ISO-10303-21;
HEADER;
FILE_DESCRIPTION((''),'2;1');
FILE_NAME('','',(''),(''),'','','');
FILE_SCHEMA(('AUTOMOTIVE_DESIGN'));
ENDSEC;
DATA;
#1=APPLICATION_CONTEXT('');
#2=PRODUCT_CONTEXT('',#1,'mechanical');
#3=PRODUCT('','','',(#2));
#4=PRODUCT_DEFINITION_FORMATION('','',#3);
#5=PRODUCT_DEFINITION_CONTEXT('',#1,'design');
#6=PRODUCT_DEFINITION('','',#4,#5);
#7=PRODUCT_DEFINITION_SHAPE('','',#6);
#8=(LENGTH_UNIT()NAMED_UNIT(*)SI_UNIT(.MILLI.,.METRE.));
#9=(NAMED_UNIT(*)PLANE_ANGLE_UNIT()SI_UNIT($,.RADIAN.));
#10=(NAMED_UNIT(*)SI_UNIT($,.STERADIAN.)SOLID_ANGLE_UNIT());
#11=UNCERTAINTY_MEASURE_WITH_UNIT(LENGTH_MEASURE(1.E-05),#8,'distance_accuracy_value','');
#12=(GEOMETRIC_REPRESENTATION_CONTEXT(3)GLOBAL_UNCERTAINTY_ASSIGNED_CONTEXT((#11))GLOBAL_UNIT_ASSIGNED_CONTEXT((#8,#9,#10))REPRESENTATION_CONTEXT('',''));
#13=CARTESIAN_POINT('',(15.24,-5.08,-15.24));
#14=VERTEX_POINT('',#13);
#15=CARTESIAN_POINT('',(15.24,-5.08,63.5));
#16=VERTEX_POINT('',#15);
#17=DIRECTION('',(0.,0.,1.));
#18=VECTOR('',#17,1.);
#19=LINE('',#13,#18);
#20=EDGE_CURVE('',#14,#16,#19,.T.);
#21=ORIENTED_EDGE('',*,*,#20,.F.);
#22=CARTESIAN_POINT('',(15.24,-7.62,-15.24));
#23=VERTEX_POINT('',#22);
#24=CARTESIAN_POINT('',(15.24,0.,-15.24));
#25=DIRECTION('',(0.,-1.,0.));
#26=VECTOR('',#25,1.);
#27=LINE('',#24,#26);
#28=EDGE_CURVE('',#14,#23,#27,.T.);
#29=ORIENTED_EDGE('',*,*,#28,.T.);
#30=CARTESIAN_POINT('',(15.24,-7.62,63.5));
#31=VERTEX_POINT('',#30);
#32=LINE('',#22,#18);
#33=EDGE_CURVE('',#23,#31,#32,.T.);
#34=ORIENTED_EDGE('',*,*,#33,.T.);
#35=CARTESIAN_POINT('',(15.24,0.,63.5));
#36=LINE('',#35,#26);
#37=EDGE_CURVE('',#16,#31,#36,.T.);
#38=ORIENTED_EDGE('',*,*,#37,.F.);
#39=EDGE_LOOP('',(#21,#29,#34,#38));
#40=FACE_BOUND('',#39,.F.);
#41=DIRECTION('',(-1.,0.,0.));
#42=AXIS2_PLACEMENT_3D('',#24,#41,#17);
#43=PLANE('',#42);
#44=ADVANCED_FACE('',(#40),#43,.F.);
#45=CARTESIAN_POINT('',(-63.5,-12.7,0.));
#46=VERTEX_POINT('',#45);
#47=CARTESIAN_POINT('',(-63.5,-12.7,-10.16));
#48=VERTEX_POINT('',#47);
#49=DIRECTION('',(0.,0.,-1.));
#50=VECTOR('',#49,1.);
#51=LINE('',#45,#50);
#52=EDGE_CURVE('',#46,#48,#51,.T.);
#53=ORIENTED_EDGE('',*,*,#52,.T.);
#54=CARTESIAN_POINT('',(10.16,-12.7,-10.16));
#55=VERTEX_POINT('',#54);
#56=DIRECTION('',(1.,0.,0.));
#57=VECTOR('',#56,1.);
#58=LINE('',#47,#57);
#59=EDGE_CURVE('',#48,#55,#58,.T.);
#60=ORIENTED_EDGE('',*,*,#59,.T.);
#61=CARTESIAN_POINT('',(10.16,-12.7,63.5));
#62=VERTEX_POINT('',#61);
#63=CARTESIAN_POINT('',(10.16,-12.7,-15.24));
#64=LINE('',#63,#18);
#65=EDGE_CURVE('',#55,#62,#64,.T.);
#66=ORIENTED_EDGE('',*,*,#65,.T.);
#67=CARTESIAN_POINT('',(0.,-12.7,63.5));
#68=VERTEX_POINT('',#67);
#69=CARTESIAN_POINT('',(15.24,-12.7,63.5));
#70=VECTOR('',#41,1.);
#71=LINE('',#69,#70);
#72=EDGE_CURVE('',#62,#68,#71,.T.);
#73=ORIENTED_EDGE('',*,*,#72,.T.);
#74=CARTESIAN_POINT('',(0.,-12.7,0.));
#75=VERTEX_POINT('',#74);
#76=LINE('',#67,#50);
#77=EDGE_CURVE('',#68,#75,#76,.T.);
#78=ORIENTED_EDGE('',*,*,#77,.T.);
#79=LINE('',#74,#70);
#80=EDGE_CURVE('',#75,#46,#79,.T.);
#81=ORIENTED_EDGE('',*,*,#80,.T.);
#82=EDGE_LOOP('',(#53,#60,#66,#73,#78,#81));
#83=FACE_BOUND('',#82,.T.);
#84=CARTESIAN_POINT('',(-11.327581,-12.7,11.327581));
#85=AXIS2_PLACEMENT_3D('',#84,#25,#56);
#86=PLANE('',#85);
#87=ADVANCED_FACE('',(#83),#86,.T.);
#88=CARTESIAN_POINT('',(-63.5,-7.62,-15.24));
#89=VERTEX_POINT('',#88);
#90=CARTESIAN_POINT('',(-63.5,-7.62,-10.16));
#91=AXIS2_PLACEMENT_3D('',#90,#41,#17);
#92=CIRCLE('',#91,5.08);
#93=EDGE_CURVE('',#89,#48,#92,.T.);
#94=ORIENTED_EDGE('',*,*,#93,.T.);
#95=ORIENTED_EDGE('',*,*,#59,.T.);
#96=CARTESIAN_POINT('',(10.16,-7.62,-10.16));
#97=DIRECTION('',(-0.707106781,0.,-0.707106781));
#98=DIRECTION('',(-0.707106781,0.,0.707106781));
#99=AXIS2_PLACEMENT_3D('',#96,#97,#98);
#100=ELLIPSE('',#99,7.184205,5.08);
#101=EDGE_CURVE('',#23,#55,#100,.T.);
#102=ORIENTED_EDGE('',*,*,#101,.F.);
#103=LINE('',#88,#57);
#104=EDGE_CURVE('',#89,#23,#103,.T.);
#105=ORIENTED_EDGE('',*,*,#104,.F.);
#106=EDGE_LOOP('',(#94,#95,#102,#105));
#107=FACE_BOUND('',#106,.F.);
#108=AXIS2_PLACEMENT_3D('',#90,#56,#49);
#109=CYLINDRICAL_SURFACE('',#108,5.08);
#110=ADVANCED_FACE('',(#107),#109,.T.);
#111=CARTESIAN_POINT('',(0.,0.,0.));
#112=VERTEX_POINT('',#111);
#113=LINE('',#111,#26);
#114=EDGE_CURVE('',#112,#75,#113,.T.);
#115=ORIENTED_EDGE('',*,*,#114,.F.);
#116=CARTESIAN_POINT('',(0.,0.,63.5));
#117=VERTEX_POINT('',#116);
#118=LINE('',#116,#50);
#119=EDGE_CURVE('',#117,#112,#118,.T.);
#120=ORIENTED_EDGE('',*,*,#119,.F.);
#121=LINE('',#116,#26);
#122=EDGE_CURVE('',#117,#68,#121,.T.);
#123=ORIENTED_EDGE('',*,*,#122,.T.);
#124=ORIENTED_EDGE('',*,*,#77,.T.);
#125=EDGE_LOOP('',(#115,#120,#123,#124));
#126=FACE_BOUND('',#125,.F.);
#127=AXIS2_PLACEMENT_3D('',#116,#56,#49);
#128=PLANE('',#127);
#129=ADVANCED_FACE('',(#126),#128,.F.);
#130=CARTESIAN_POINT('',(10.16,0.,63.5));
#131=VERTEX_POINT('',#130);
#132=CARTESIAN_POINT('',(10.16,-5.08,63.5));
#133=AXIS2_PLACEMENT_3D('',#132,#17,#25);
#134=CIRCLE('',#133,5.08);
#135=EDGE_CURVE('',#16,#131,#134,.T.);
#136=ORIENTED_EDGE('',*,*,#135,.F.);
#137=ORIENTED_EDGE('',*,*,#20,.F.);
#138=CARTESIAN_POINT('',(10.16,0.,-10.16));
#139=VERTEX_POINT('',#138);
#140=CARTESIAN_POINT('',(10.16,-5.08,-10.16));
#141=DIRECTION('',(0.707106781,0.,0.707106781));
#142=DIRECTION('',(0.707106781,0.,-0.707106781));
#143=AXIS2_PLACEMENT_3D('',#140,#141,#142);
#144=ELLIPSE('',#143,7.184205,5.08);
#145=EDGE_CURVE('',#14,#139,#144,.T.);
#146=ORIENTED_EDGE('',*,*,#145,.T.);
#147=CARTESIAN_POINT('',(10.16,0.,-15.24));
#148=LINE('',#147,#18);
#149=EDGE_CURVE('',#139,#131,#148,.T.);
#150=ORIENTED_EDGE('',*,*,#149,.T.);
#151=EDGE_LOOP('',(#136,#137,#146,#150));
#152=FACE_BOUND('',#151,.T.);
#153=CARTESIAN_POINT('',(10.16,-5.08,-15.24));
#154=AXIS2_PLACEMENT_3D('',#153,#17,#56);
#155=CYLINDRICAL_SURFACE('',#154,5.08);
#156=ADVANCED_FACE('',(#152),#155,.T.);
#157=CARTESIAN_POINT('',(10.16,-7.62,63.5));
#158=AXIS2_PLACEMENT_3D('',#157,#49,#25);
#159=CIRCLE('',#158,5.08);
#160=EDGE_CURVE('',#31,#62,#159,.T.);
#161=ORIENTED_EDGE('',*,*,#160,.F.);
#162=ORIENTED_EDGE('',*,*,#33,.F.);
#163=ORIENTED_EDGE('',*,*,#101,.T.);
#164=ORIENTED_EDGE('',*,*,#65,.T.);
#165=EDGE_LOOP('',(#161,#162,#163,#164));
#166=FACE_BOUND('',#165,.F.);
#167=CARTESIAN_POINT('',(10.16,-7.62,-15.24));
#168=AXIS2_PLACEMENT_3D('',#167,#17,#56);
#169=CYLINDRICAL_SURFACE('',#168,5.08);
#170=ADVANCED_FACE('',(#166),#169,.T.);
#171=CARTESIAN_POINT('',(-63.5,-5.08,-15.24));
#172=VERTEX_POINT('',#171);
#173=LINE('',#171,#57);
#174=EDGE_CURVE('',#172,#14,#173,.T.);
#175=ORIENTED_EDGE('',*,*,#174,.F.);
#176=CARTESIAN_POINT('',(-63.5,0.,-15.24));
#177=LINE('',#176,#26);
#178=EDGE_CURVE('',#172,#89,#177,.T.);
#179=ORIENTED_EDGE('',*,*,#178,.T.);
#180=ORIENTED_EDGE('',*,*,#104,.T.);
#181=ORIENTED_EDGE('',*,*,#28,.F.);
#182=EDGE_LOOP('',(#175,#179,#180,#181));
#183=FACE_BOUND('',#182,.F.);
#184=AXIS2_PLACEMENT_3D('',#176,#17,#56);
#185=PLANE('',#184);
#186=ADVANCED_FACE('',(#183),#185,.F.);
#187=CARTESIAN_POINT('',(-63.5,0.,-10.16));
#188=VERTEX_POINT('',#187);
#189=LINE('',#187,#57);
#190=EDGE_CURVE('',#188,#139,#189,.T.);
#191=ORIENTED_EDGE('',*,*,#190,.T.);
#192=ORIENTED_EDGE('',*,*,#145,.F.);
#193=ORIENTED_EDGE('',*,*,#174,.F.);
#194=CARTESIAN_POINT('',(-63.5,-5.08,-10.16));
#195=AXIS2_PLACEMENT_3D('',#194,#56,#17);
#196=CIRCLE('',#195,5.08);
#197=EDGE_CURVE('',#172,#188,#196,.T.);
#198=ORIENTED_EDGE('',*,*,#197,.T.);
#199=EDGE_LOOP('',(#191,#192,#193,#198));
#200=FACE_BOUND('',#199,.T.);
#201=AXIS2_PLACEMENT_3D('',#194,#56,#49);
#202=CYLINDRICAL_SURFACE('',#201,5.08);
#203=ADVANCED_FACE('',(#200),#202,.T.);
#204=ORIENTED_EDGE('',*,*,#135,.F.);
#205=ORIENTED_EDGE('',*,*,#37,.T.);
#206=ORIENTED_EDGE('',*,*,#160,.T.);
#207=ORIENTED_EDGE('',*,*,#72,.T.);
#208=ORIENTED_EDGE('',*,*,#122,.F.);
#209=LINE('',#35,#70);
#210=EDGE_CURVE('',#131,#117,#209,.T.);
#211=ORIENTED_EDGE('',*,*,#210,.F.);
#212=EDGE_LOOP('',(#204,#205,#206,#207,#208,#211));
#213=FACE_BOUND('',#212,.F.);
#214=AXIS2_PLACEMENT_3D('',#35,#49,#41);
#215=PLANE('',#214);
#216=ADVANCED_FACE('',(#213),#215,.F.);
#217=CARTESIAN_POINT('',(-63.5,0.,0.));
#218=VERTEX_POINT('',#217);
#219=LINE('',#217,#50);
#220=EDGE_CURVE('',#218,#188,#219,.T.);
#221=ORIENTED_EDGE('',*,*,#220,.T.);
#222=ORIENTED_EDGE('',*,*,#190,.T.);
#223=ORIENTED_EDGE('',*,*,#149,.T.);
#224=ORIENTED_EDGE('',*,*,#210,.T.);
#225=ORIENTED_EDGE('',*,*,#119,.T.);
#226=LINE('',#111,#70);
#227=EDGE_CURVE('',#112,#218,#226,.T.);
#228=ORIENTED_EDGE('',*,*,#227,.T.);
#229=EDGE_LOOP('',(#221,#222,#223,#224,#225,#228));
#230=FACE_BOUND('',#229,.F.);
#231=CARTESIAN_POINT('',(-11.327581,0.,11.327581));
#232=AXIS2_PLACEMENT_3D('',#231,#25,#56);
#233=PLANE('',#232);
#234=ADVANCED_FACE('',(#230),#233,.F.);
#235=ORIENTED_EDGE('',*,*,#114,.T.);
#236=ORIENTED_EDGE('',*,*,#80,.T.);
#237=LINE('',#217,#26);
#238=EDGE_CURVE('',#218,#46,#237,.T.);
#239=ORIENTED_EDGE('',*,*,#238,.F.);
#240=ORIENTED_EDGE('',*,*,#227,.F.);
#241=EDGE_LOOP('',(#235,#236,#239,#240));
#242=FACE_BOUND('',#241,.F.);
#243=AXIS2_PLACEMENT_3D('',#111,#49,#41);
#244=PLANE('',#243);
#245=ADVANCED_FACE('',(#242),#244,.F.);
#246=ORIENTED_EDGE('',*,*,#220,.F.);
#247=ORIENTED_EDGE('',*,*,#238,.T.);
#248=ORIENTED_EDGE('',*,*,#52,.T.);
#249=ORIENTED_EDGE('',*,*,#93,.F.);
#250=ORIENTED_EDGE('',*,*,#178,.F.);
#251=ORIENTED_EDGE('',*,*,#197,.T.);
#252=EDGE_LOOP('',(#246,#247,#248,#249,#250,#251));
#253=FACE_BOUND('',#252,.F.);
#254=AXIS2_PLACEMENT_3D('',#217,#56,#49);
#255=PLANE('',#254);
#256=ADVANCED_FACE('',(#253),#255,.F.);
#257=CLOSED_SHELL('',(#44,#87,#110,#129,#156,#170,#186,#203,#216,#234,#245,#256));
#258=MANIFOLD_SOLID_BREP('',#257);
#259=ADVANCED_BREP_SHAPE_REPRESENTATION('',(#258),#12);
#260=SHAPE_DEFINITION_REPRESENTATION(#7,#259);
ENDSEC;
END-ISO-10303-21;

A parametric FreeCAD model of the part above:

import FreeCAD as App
import Part
import Sketcher
Q = App.Units.Quantity


def edges_at(feature, points):
    """Names of the edges that pass closest to the given points."""
    edges = feature.Shape.Edges
    near = lambda p: min(range(len(edges)), key=lambda i: edges[i].distToShape(Part.Vertex(*p))[0])
    return sorted({f"Edge{near(p) + 1}" for p in points})

doc = App.newDocument("Part")
body = doc.addObject("PartDesign::Body", "Body")

# Sketch on XZ plane
sketch1 = body.newObject("Sketcher::SketchObject", "Sketch")
sketch1.AttachmentSupport = (doc.getObject("XZ_Plane"), [""])
sketch1.MapMode = "FlatFace"
sketch1.addGeometry([
    Part.LineSegment(App.Vector(0, 0, 0), App.Vector(-63.5, 0, 0)),  # 0
    Part.LineSegment(App.Vector(-63.5, 0, 0), App.Vector(-63.5, -15.24, 0)),  # 1
    Part.LineSegment(App.Vector(-63.5, -15.24, 0), App.Vector(15.24, -15.24, 0)),  # 2
    Part.LineSegment(App.Vector(15.24, -15.24, 0), App.Vector(15.24, 63.5, 0)),  # 3
    Part.LineSegment(App.Vector(15.24, 63.5, 0), App.Vector(0, 63.5, 0)),  # 4
    Part.LineSegment(App.Vector(0, 63.5, 0), App.Vector(0, 0, 0)),  # 5
], False)
sketch1.addConstraint([
    Sketcher.Constraint("Coincident", 0, 2, 1, 1),
    Sketcher.Constraint("Coincident", 1, 2, 2, 1),
    Sketcher.Constraint("Coincident", 2, 2, 3, 1),
    Sketcher.Constraint("Coincident", 3, 2, 4, 1),
    Sketcher.Constraint("Coincident", 4, 2, 5, 1),
    Sketcher.Constraint("Coincident", 5, 2, 0, 1),
    Sketcher.Constraint("Horizontal", 0),
    Sketcher.Constraint("Vertical", 1),
    Sketcher.Constraint("Horizontal", 2),
    Sketcher.Constraint("Vertical", 3),
    Sketcher.Constraint("Horizontal", 4),
    Sketcher.Constraint("Vertical", 5),
    Sketcher.Constraint("Coincident", 5, 2, -1, 1),
    Sketcher.Constraint("Equal", 4, 1),
    Sketcher.Constraint("Equal", 2, 3),
    Sketcher.Constraint("DistanceX", 0, 2, 0, 1, Q("2.5 in")),
    Sketcher.Constraint("DistanceX", 2, 1, 2, 2, Q("3.1 in")),
])
pad1 = body.newObject("PartDesign::Pad", "Pad")
pad1.Profile = sketch1
pad1.Length = Q("0.5 in")
doc.recompute()

fillet = body.newObject("PartDesign::Fillet", "Fillet")
fillet.Base = (pad1, edges_at(pad1, [
    (15.24, -12.7, 24.13),
    (-24.13, -12.7, -15.24),
    (-24.13, 0, -15.24),
    (15.24, 0, 24.13),
]))
fillet.Radius = Q("0.2 in")

doc.recompute()
